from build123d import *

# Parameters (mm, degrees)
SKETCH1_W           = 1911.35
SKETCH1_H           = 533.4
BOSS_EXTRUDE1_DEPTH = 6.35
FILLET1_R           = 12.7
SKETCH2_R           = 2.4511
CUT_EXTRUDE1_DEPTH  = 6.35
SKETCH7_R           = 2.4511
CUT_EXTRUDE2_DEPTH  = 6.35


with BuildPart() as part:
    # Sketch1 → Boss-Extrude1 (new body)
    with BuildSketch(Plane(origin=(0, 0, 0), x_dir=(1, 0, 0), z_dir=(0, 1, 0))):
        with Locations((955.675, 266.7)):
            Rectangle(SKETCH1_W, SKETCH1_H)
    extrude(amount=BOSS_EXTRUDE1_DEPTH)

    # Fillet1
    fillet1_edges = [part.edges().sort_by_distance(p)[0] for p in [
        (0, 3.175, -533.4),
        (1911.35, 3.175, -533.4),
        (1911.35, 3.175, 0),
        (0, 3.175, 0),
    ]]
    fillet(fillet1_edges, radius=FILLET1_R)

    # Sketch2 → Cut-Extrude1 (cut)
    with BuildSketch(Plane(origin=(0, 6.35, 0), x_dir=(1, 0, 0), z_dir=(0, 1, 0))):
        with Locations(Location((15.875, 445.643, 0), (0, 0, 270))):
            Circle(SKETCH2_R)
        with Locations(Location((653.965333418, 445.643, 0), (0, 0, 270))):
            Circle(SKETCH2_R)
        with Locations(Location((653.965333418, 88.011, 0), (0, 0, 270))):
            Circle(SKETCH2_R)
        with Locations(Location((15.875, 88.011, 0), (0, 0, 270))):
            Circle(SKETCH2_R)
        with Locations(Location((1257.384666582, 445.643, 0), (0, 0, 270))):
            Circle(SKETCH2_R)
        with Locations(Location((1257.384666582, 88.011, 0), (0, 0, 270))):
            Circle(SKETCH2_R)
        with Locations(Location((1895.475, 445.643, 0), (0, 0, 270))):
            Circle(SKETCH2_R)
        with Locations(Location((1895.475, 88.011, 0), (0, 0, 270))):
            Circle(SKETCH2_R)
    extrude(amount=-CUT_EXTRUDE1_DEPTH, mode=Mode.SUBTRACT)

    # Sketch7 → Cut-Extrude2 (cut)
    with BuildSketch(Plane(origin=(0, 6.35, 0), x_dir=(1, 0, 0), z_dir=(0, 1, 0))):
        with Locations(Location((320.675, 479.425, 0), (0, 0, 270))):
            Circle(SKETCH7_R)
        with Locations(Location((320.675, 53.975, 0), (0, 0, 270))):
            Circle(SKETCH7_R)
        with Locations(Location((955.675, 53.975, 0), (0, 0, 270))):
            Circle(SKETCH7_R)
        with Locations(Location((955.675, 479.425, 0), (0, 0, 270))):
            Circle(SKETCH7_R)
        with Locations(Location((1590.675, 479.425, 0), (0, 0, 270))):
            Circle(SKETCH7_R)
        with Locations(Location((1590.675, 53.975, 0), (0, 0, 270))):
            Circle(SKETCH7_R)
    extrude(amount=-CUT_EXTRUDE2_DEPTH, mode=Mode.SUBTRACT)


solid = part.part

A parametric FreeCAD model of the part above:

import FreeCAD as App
import Part
import Sketcher
Q = App.Units.Quantity


def edges_at(feature, points):
    """Names of the edges that pass closest to the given points."""
    edges = feature.Shape.Edges
    near = lambda p: min(range(len(edges)), key=lambda i: edges[i].distToShape(Part.Vertex(*p))[0])
    return sorted({f"Edge{near(p) + 1}" for p in points})

doc = App.newDocument("Part")
params = doc.addObject("Spreadsheet::Sheet", "Params")
for row, (alias, value) in enumerate([
    ("sketch1_height", "21 in"),
    ("sketch1_width", "75.25 in"),
    ("pad1_length", "0.25 in"),
    ("fillet_radius", "0.5 in"),
    ("sketch2_diameter", "0.193 in"),
    ("pocket1_length", "0.25 in"),
    ("sketch3_diameter", "0.193 in"),
    ("pocket2_length", "0.25 in"),
], start=1):
    params.set(f"A{row}", alias)
    params.set(f"B{row}", "=" + value)
    params.setAlias(f"B{row}", alias)

body = doc.addObject("PartDesign::Body", "Body")

sketch1 = doc.addObject("Sketcher::SketchObject", "Sketch")
body.addObject(sketch1)
sketch1.AttachmentSupport = (doc.XZ_Plane, [""])
sketch1.MapMode = "FlatFace"
sketch1.addGeometry([
    Part.LineSegment(App.Vector(0, -533, 0), App.Vector(0, 0, 0)),
    Part.LineSegment(App.Vector(0, 0, 0), App.Vector(1911, 0, 0)),
    Part.LineSegment(App.Vector(1911, 0, 0), App.Vector(1911, -533, 0)),
    Part.LineSegment(App.Vector(1911, -533, 0), App.Vector(0, -533, 0)),
], False)
sketch1.addConstraint([
    Sketcher.Constraint("Coincident", 0, 2, 1, 1),
    Sketcher.Constraint("Coincident", 1, 2, 2, 1),
    Sketcher.Constraint("Coincident", 2, 2, 3, 1),
    Sketcher.Constraint("Coincident", 3, 2, 0, 1),
    Sketcher.Constraint("Vertical", 0),
    Sketcher.Constraint("Horizontal", 1),
    Sketcher.Constraint("Vertical", 2),
    Sketcher.Constraint("Horizontal", 3),
    Sketcher.Constraint("Coincident", 0, 2, -1, 1),
    Sketcher.Constraint("DistanceY", 0, 1, 0, 2, Q("21 in")),
    Sketcher.Constraint("DistanceX", 1, 1, 1, 2, Q("75.25 in")),
])
sketch1.setExpression("Constraints[9]", "Params.sketch1_height")
sketch1.setExpression("Constraints[10]", "Params.sketch1_width")
pad1 = doc.addObject("PartDesign::Pad", "Pad")
body.addObject(pad1)
pad1.Profile = sketch1
pad1.setExpression("Length", "Params.pad1_length")
pad1.Reversed = True
doc.recompute()

fillet = doc.addObject("PartDesign::Fillet", "Fillet")
body.addObject(fillet)
fillet.Base = (pad1, edges_at(pad1, [
    (0, 3.175, -533.4),
    (1911.35, 3.175, -533.4),
    (1911.35, 3.175, 0),
    (0, 3.175, 0),
]))
fillet.setExpression("Radius", "Params.fillet_radius")

sketch2 = doc.addObject("Sketcher::SketchObject", "Sketch001")
body.addObject(sketch2)
sketch2.AttachmentSupport = (doc.XZ_Plane, [""])
sketch2.MapMode = "FlatFace"
sketch2.AttachmentOffset = App.Placement(App.Vector(0, 0, -0.25 * 25.4), App.Rotation())
sketch2.addGeometry([
    Part.Circle(App.Vector(15.9, -445.6, 0), App.Vector(0, 0, 1), 2.5),
    Part.Circle(App.Vector(654, -445.6, 0), App.Vector(0, 0, 1), 2.5),
    Part.Circle(App.Vector(654, -88, 0), App.Vector(0, 0, 1), 2.5),
    Part.Circle(App.Vector(15.9, -88, 0), App.Vector(0, 0, 1), 2.5),
    Part.Circle(App.Vector(1257.4, -445.6, 0), App.Vector(0, 0, 1), 2.5),
    Part.Circle(App.Vector(1257.4, -88, 0), App.Vector(0, 0, 1), 2.5),
    Part.Circle(App.Vector(1895.5, -445.6, 0), App.Vector(0, 0, 1), 2.5),
    Part.Circle(App.Vector(1895.5, -88, 0), App.Vector(0, 0, 1), 2.5),
], False)
sketch2.addConstraint([
    Sketcher.Constraint("Equal", 0, 1),
    Sketcher.Constraint("Equal", 1, 2),
    Sketcher.Constraint("Equal", 2, 3),
    Sketcher.Constraint("Equal", 3, 4),
    Sketcher.Constraint("Equal", 4, 5),
    Sketcher.Constraint("Equal", 5, 6),
    Sketcher.Constraint("Equal", 6, 7),
    Sketcher.Constraint("Horizontal", 0, 3, 1, 3),
    Sketcher.Constraint("Horizontal", 2, 3, 3, 3),
    Sketcher.Constraint("Horizontal", 1, 3, 4, 3),
    Sketcher.Constraint("Horizontal", 3, 3, 5, 3),
    Sketcher.Constraint("Horizontal", 4, 3, 6, 3),
    Sketcher.Constraint("Horizontal", 5, 3, 7, 3),
    Sketcher.Constraint("Vertical", 1, 3, 2, 3),
    Sketcher.Constraint("Vertical", 0, 3, 3, 3),
    Sketcher.Constraint("Vertical", 4, 3, 5, 3),
    Sketcher.Constraint("Vertical", 6, 3, 7, 3),
    Sketcher.Constraint("Diameter", 0, Q("0.193 in")),
    Sketcher.Constraint("DistanceX", 0, 3, 6, 3, Q("74 in")),
    Sketcher.Constraint("DistanceY", 1, 3, 2, 3, Q("14.08 in")),
    Sketcher.Constraint("DistanceX", -1, 1, 0, 3, Q("0.625 in")),
    Sketcher.Constraint("DistanceY", 0, 3, -1, 1, Q("17.545 in")),
    Sketcher.Constraint("DistanceX", -1, 1, 1, 3, 653.965333),
    Sketcher.Constraint("DistanceX", -1, 1, 4, 3, 1257.384667),
])
sketch2.setExpression("Constraints[17]", "Params.sketch2_diameter")
pocket1 = doc.addObject("PartDesign::Pocket", "Pocket")
body.addObject(pocket1)
pocket1.Profile = sketch2
pocket1.setExpression("Length", "Params.pocket1_length")
pocket1.Reversed = True

sketch3 = doc.addObject("Sketcher::SketchObject", "Sketch002")
body.addObject(sketch3)
sketch3.AttachmentSupport = (doc.XZ_Plane, [""])
sketch3.MapMode = "FlatFace"
sketch3.AttachmentOffset = App.Placement(App.Vector(0, 0, -0.25 * 25.4), App.Rotation())
sketch3.addGeometry([
    Part.Circle(App.Vector(320.7, -479.4, 0), App.Vector(0, 0, 1), 2.5),
    Part.Circle(App.Vector(320.7, -54, 0), App.Vector(0, 0, 1), 2.5),
    Part.Circle(App.Vector(955.7, -54, 0), App.Vector(0, 0, 1), 2.5),
    Part.Circle(App.Vector(955.7, -479.4, 0), App.Vector(0, 0, 1), 2.5),
    Part.Circle(App.Vector(1590.7, -479.4, 0), App.Vector(0, 0, 1), 2.5),
    Part.Circle(App.Vector(1590.7, -54, 0), App.Vector(0, 0, 1), 2.5),
], False)
sketch3.addConstraint([
    Sketcher.Constraint("Equal", 0, 1),
    Sketcher.Constraint("Equal", 1, 2),
    Sketcher.Constraint("Equal", 2, 3),
    Sketcher.Constraint("Equal", 3, 4),
    Sketcher.Constraint("Equal", 4, 5),
    Sketcher.Constraint("Horizontal", 1, 3, 2, 3),
    Sketcher.Constraint("Horizontal", 0, 3, 3, 3),
    Sketcher.Constraint("Horizontal", 3, 3, 4, 3),
    Sketcher.Constraint("Horizontal", 2, 3, 5, 3),
    Sketcher.Constraint("Vertical", 0, 3, 1, 3),
    Sketcher.Constraint("Vertical", 2, 3, 3, 3),
    Sketcher.Constraint("Vertical", 4, 3, 5, 3),
    Sketcher.Constraint("Diameter", 0, Q("0.193 in")),
    Sketcher.Constraint("DistanceX", 1, 3, 2, 3, Q("25 in")),
    Sketcher.Constraint("DistanceX", 3, 3, 4, 3, Q("25 in")),
    Sketcher.Constraint("DistanceY", 0, 3, 1, 3, Q("16.75 in")),
    Sketcher.Constraint("DistanceX", -1, 1, 0, 3, Q("12.625 in")),
    Sketcher.Constraint("DistanceY", 0, 3, -1, 1, Q("18.875 in")),
])
sketch3.setExpression("Constraints[12]", "Params.sketch3_diameter")
pocket2 = doc.addObject("PartDesign::Pocket", "Pocket001")
body.addObject(pocket2)
pocket2.Profile = sketch3
pocket2.setExpression("Length", "Params.pocket2_length")
pocket2.Reversed = True

doc.recompute()
